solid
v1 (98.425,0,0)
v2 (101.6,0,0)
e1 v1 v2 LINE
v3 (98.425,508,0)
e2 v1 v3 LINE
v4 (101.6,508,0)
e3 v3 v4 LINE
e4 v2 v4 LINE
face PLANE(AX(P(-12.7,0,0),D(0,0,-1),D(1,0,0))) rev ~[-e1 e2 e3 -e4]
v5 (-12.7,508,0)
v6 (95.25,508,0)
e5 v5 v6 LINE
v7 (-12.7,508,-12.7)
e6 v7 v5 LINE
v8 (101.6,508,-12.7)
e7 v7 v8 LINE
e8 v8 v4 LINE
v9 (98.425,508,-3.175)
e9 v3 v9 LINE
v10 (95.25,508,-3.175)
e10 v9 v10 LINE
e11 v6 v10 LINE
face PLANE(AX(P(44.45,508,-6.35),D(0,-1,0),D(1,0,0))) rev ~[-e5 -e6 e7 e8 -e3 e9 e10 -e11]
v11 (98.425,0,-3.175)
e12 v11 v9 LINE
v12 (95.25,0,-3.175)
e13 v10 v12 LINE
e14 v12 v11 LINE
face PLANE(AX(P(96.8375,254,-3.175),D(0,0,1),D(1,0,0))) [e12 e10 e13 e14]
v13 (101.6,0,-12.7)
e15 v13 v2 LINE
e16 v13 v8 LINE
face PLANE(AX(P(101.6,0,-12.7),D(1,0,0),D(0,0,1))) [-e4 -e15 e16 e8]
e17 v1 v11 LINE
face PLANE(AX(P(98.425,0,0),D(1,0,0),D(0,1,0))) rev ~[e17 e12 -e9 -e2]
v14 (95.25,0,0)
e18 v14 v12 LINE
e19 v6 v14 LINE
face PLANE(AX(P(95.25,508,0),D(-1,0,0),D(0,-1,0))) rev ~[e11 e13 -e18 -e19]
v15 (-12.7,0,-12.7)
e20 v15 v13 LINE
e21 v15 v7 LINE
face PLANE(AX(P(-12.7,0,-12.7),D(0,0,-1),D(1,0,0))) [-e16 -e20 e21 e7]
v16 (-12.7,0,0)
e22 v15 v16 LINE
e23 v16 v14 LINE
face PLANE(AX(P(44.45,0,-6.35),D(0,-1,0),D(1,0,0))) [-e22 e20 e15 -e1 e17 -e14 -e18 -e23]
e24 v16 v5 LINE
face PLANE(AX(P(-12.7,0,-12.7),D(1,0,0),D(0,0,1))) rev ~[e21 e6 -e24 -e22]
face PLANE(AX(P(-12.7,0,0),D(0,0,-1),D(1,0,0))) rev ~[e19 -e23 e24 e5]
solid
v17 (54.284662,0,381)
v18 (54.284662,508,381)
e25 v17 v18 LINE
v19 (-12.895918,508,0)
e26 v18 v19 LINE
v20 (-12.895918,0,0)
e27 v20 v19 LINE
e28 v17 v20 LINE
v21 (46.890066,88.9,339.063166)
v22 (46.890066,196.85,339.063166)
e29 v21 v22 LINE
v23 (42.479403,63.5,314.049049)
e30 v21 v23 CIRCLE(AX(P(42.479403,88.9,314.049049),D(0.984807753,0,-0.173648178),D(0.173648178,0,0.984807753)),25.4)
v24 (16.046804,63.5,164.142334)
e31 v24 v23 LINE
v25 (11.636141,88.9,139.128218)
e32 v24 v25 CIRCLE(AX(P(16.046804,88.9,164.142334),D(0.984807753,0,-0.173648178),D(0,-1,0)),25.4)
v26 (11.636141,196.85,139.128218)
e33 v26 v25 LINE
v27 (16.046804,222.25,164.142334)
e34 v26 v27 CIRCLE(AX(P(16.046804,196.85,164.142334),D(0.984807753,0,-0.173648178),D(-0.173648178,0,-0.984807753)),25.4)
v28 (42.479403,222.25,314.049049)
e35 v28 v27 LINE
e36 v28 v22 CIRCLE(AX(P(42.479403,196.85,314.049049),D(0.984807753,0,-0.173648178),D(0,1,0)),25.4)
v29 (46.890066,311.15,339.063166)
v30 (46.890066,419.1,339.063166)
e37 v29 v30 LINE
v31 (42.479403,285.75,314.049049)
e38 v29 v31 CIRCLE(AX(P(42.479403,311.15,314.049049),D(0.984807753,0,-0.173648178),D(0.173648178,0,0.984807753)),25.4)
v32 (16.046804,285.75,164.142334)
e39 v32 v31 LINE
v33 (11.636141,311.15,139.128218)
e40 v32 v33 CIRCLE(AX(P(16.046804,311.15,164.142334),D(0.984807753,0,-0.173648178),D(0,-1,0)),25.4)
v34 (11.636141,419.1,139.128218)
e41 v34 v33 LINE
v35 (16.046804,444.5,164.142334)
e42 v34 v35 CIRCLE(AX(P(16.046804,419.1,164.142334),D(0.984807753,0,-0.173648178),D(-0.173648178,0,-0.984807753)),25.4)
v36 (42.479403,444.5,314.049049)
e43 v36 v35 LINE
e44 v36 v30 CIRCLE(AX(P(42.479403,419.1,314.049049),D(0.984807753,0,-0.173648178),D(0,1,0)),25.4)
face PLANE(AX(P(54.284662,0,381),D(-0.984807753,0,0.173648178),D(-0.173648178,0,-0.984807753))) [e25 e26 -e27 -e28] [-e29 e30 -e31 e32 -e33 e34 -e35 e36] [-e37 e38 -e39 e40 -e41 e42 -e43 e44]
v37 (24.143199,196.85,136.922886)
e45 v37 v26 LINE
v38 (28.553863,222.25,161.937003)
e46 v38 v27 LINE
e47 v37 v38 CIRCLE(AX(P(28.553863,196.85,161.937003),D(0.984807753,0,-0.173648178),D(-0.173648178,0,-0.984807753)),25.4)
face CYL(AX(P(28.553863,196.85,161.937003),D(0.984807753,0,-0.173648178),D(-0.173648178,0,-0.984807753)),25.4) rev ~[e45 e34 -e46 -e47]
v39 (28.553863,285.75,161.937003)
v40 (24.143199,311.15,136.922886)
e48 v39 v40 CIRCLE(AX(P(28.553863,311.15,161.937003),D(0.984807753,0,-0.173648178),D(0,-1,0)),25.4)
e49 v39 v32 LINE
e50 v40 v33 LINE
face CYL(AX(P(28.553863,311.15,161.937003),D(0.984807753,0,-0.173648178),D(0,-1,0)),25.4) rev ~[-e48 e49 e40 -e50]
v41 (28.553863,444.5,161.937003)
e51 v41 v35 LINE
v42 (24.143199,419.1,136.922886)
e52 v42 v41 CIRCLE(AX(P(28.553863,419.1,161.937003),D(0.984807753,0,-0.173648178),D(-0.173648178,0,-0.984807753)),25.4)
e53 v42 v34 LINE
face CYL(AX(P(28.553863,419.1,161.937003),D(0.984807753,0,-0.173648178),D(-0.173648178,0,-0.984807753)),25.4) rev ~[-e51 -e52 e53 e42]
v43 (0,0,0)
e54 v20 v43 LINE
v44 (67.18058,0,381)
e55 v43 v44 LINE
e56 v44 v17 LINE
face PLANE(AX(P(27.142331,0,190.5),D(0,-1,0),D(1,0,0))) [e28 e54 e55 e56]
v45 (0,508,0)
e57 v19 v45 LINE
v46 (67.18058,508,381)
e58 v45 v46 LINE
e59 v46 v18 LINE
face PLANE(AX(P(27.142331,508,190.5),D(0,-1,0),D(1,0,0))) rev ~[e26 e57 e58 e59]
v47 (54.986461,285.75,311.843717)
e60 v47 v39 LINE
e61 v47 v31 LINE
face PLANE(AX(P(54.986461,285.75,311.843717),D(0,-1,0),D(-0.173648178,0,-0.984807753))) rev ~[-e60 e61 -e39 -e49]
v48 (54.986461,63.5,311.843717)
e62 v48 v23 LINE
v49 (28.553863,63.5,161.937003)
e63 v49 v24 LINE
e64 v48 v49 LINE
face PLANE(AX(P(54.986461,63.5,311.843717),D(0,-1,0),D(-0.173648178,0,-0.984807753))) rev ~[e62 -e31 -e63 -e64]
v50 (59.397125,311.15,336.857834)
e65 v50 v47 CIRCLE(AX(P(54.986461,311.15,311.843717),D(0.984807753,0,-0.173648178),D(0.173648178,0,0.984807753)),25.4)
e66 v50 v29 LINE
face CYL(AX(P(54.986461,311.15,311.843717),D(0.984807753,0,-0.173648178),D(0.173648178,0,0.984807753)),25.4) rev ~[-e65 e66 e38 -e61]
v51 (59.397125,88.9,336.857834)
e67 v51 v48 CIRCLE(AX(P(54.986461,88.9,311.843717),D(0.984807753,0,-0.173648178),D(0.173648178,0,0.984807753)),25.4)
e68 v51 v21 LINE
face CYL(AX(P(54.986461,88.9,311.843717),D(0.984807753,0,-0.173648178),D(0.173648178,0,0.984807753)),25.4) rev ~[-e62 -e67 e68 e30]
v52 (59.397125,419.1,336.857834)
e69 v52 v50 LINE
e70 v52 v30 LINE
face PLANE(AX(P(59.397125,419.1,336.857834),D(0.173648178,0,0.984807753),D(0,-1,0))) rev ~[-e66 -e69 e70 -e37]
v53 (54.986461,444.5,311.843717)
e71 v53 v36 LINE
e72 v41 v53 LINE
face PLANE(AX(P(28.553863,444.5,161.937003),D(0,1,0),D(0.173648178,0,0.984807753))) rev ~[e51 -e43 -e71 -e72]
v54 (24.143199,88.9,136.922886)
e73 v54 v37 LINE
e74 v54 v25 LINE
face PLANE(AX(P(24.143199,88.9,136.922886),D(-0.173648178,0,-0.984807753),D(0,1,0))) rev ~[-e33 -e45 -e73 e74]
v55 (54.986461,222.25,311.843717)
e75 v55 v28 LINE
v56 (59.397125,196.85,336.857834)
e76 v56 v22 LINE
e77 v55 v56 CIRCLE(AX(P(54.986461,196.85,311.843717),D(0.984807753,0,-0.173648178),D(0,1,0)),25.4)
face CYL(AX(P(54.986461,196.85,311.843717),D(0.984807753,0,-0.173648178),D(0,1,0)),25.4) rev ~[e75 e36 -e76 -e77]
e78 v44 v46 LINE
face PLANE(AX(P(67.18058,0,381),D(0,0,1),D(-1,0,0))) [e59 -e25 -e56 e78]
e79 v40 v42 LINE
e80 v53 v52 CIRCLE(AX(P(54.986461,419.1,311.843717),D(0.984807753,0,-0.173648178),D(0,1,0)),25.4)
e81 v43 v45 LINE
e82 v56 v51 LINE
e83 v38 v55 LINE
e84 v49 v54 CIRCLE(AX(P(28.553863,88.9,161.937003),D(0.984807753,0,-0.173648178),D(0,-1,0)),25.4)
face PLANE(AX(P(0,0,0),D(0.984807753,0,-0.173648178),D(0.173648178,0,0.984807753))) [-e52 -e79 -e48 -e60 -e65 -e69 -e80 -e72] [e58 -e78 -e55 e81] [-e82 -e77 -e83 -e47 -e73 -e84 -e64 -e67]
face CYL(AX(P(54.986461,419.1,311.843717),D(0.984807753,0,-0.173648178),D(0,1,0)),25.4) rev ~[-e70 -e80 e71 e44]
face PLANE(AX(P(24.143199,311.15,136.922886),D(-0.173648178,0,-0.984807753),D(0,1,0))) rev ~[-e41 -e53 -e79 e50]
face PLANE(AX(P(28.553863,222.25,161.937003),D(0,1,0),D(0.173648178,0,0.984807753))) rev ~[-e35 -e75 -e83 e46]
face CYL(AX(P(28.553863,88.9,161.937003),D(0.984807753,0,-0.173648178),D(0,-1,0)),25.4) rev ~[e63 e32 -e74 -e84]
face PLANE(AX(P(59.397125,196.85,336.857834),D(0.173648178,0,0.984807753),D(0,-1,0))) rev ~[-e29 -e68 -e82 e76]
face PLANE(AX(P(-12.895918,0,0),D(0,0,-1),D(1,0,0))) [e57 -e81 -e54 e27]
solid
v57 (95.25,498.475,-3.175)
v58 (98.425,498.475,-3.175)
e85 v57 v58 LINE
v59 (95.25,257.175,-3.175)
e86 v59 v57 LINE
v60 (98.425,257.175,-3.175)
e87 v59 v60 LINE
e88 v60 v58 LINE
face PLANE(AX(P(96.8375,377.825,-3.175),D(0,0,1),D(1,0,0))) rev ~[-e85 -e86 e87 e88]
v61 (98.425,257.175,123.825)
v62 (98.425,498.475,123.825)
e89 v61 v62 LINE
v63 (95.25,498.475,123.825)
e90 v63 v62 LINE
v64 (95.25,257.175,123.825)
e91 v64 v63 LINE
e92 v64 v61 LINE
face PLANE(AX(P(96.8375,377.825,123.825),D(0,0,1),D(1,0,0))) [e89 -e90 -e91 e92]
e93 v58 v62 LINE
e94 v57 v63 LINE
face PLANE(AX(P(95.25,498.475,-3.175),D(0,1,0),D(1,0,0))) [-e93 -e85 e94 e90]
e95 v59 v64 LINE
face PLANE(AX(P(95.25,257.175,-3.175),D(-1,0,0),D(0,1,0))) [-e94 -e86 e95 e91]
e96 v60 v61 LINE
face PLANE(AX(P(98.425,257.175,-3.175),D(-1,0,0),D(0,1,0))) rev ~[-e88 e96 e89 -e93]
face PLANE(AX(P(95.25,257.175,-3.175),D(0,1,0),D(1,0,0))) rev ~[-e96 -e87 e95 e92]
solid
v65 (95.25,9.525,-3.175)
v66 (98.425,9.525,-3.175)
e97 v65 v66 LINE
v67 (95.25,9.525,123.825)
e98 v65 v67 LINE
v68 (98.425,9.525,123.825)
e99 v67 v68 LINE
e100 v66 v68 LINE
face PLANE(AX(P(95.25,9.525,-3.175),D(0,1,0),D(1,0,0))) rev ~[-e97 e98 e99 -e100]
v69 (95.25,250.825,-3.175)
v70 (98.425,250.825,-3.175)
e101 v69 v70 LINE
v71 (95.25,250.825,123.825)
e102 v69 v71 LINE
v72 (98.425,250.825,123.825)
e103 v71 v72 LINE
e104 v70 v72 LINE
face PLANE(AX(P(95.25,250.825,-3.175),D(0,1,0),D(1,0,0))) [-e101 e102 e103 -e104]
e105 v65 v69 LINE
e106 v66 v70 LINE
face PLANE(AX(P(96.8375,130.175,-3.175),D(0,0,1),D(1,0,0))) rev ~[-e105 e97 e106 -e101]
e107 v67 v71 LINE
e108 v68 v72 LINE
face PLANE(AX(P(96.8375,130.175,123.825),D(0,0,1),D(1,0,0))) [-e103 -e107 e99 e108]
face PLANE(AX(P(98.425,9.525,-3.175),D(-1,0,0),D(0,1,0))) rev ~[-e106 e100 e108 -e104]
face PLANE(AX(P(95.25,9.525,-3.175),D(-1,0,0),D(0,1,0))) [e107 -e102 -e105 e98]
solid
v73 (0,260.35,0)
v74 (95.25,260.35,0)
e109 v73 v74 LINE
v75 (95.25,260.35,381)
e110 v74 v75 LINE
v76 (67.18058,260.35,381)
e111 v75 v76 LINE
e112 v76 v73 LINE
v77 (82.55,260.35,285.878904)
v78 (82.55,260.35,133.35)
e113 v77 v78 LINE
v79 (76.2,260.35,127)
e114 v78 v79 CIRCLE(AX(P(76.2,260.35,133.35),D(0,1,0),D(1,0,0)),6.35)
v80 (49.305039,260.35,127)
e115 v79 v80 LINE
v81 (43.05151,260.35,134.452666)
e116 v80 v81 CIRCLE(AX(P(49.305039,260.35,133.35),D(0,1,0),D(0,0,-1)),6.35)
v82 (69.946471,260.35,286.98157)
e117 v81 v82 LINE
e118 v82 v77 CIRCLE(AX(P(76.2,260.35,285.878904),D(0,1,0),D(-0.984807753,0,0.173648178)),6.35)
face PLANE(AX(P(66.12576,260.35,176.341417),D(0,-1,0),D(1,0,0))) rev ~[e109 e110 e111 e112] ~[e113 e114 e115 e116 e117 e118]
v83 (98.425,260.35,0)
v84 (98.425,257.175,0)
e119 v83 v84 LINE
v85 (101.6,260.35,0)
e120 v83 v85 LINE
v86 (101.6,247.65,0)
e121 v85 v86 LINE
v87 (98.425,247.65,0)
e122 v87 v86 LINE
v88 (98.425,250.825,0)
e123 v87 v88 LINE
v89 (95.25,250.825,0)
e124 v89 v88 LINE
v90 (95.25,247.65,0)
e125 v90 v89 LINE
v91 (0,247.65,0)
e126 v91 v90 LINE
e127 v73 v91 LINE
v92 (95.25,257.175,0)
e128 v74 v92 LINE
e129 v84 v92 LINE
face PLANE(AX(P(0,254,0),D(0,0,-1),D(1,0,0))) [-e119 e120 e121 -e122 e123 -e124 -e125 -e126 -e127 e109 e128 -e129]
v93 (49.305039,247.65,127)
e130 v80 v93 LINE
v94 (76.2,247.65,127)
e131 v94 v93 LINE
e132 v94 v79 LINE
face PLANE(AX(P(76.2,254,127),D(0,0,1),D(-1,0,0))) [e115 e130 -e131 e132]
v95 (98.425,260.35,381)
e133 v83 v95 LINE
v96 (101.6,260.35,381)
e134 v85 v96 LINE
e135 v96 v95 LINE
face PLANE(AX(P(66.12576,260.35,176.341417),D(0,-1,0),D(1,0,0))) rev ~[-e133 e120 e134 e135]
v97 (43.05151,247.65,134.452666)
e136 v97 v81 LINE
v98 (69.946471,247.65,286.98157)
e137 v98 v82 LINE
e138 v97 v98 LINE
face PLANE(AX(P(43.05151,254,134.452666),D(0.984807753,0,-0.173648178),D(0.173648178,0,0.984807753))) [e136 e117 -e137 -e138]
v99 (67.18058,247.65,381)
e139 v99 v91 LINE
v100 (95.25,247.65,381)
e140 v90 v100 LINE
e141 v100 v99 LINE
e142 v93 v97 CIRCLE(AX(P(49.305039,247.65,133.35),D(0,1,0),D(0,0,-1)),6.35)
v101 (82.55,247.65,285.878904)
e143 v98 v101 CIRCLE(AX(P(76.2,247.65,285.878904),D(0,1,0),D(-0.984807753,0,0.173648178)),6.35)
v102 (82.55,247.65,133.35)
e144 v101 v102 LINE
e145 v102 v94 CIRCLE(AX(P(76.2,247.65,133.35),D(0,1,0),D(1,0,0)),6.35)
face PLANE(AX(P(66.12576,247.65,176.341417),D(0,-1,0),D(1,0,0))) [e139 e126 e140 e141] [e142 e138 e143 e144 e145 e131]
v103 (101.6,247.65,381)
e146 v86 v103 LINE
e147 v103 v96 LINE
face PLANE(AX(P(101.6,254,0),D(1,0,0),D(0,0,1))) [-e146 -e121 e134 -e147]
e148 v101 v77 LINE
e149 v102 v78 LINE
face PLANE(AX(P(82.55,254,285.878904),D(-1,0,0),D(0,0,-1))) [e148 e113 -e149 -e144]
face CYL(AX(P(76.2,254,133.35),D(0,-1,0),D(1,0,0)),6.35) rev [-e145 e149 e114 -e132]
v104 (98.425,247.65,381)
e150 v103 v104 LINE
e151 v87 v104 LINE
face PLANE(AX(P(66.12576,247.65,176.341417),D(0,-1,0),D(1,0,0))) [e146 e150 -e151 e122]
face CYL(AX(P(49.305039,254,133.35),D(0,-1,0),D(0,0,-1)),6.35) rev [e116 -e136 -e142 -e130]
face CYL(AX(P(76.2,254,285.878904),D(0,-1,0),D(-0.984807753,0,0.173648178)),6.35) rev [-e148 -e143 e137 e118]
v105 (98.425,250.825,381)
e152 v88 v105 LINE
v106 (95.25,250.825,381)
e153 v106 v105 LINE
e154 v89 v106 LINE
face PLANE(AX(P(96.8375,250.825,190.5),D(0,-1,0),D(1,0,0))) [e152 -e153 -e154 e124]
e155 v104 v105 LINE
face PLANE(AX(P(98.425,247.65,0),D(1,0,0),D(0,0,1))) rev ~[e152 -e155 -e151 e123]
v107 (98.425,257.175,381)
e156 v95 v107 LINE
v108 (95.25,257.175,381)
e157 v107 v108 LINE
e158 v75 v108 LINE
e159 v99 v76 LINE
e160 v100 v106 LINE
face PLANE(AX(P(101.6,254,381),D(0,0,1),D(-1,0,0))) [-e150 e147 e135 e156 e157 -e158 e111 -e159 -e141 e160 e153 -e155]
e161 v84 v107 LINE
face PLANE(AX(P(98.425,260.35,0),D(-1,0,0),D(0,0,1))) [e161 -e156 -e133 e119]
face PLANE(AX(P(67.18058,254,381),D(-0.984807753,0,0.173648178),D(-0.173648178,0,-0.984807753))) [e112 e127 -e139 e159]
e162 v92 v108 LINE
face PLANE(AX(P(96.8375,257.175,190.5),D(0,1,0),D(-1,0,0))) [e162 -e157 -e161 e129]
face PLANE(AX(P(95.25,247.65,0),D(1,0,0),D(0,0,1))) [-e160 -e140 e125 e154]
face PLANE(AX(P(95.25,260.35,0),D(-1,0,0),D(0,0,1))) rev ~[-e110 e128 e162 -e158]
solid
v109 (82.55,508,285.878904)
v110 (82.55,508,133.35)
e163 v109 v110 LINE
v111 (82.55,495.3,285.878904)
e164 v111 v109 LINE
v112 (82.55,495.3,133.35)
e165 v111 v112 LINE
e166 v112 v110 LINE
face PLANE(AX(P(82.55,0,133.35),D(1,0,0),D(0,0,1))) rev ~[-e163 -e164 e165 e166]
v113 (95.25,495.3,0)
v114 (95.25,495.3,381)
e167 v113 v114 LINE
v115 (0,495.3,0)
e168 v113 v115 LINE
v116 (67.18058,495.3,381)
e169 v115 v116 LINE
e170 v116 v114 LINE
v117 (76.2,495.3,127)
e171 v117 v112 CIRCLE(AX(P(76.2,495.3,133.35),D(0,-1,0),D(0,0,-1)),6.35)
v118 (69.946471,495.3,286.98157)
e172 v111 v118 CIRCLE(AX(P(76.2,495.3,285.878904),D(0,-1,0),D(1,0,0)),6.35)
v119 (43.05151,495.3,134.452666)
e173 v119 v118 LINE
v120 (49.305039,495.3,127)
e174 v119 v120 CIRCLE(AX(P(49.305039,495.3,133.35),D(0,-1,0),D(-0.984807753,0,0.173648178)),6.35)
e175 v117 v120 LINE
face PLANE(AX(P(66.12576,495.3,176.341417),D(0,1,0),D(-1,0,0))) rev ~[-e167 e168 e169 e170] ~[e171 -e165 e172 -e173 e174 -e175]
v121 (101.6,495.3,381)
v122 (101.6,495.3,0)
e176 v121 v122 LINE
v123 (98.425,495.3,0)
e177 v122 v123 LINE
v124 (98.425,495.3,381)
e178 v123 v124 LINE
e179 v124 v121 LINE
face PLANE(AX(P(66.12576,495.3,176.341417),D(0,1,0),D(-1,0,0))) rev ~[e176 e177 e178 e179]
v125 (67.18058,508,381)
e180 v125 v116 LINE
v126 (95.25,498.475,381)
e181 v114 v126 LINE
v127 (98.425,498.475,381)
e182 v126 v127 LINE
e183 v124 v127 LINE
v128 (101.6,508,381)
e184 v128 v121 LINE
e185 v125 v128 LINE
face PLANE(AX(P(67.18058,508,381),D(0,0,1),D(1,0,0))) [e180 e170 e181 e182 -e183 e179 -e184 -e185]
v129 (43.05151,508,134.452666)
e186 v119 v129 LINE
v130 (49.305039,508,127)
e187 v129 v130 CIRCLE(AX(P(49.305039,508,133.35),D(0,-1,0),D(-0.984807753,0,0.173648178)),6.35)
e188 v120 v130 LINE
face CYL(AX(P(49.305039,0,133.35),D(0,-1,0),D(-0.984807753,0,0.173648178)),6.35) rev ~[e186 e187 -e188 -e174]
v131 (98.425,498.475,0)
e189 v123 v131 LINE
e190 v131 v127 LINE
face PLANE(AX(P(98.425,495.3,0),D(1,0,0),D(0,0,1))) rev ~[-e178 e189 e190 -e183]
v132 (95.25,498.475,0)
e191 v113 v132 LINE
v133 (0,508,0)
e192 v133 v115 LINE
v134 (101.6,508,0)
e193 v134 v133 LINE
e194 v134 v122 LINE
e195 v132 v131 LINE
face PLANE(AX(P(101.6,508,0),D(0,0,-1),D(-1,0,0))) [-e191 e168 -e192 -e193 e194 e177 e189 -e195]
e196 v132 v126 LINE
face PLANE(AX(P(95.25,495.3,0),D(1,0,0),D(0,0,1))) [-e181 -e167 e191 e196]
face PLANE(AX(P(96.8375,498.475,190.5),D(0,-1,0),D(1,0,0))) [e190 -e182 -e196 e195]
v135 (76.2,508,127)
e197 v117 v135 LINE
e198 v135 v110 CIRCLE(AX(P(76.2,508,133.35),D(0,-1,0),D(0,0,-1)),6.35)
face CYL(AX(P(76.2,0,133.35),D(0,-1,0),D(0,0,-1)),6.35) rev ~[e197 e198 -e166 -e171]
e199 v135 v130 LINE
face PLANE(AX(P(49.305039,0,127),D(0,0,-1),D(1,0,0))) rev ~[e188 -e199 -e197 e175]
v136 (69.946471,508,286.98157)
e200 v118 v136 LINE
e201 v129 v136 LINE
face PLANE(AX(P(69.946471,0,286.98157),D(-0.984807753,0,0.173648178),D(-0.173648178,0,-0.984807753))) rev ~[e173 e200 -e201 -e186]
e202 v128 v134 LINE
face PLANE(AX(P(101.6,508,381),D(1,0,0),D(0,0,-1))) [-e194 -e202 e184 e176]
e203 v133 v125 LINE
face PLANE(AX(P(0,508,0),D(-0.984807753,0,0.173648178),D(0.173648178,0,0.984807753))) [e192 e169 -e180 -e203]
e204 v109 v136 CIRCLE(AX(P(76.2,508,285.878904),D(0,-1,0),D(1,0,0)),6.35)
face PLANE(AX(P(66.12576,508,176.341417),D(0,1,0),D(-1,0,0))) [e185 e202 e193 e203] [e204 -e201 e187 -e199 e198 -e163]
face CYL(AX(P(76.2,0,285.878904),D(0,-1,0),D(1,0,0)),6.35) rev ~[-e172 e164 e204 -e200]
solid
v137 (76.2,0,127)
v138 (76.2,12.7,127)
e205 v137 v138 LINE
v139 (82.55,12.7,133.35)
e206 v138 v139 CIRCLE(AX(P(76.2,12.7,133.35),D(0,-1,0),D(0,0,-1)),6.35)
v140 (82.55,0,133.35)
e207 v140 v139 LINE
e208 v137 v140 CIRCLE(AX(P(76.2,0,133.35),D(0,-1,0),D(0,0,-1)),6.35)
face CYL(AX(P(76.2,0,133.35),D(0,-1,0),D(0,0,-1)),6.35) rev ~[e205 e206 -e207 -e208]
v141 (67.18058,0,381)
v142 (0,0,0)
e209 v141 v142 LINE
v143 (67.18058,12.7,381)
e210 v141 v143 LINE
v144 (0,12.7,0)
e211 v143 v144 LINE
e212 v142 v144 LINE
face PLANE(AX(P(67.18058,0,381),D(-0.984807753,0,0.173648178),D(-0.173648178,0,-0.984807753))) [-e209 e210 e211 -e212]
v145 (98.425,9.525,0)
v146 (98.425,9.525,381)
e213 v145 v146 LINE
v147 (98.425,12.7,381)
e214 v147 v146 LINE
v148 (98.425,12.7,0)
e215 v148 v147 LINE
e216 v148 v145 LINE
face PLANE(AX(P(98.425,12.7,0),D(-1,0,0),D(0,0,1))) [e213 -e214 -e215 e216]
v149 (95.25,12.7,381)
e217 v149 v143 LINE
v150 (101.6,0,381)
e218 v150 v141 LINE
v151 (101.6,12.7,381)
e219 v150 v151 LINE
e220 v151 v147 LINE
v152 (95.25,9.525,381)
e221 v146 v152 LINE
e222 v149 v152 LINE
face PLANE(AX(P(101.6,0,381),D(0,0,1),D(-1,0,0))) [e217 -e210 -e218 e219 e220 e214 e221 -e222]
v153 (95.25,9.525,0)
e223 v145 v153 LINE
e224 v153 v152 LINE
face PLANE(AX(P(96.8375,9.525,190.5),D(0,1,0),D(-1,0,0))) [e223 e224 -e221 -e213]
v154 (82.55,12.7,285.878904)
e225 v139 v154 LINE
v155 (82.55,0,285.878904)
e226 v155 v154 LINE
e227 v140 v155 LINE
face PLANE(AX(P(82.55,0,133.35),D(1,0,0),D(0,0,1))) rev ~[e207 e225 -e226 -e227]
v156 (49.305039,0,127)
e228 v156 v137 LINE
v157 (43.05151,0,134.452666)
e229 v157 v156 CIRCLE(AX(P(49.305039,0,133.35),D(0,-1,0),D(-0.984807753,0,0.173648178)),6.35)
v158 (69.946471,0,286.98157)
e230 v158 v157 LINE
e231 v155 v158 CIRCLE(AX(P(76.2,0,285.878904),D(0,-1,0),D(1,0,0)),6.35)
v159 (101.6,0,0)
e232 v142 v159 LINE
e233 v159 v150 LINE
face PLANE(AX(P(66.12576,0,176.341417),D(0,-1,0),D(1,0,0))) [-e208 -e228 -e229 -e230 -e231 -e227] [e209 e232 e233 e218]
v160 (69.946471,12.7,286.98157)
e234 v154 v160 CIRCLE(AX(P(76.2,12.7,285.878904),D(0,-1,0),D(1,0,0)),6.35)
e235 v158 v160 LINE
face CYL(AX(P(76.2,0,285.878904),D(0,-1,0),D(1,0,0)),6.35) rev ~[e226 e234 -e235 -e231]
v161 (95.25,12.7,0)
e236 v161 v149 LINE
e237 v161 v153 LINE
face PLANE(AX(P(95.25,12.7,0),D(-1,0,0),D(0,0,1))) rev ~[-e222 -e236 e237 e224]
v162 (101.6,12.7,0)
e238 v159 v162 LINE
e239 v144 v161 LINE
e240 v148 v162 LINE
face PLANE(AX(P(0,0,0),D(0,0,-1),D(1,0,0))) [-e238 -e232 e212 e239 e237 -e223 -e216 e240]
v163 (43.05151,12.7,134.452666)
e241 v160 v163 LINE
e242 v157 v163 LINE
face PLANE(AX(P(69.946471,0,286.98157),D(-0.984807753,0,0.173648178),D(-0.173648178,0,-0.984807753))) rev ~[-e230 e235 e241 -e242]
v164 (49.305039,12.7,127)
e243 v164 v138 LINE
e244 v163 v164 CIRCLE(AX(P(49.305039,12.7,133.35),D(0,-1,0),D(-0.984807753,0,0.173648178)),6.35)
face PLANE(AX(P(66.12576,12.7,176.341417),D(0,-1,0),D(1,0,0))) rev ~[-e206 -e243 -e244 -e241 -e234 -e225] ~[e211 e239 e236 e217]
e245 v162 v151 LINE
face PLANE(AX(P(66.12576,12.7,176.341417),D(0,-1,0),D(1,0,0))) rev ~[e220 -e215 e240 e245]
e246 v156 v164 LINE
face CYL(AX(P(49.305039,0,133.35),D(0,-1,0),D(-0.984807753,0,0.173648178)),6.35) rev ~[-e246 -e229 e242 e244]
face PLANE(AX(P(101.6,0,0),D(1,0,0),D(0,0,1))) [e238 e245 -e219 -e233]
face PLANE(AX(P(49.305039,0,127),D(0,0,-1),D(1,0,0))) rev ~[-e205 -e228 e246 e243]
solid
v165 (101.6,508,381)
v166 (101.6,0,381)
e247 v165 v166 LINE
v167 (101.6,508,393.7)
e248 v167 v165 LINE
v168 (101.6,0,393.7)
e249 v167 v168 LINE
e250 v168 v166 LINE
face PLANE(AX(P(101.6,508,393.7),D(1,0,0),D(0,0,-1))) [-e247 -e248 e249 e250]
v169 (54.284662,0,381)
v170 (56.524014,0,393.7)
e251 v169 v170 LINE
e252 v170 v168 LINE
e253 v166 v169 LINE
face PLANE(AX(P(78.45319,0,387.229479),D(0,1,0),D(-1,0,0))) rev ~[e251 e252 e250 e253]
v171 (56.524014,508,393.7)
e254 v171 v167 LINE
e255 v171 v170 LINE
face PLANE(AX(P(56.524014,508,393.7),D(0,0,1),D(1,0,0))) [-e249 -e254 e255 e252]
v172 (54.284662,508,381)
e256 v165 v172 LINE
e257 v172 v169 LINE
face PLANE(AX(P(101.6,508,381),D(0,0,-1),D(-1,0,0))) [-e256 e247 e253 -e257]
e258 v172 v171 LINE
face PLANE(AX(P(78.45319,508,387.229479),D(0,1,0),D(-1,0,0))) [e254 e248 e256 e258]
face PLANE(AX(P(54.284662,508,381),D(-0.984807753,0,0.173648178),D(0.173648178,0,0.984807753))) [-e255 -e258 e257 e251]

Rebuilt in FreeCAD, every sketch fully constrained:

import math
import FreeCAD as App
import Part
import Sketcher
Q = App.Units.Quantity


def add_polygon(sketch, points):
    """Adds a closed chain of lines whose ends are joined by coincident constraints."""
    first, n = sketch.GeometryCount, len(points)
    for a, b in zip(points, points[1:] + points[:1]):
        sketch.addGeometry(Part.LineSegment(App.Vector(*a, 0), App.Vector(*b, 0)), False)
    for i in range(n):
        sketch.addConstraint(Sketcher.Constraint("Coincident", first + i, 2, first + (i + 1) % n, 1))

doc = App.newDocument("Part")
params = doc.addObject("Spreadsheet::Sheet", "Params")
for row, (alias, value) in enumerate([
    ("sketch1_width", "4 in"),
    ("sketch1_height", "15 in"),
    ("pad1_length", "0.5 in"),
    ("sketch2_height", "15 in"),
    ("sketch2_width", "0.125 in"),
    ("pocket1_length", "0.125 in"),
    ("sketch3_width", "4.5 in"),
    ("sketch3_height", "0.5 in"),
    ("pad2_length", "20 in"),
    ("sketch4_height", "20 in"),
    ("sketch4_width", "0.125 in"),
    ("pocket2_length", "0.125 in"),
    ("sketch5_width", "4 in"),
    ("sketch5_height", "15 in"),
    ("pad3_length", "0.5 in"),
    ("sketch6_height", "15 in"),
    ("sketch6_width", "0.125 in"),
    ("pocket3_length", "0.125 in"),
    ("pad4_length", "20 in"),
    ("sketch8_radius", "1 in"),
    ("sketch8_width", "4.25 in"),
    ("sketch9_height", "0.5 in"),
    ("pad5_length", "20 in"),
    ("sketch10_width", "4 in"),
    ("sketch10_height", "15 in"),
    ("sketch10_radius", "0.25 in"),
    ("pad6_length", "0.5 in"),
    ("sketch11_height", "15 in"),
    ("sketch11_width", "0.125 in"),
    ("pocket5_length", "0.125 in"),
    ("sketch12_height", "15 in"),
    ("sketch12_width", "0.125 in"),
    ("pocket6_length", "0.125 in"),
    ("sketch13_height", "9.5 in"),
    ("sketch13_width", "0.125 in"),
    ("pad7_length", "5 in"),
    ("sketch14_height", "9.5 in"),
    ("sketch14_width", "0.125 in"),
    ("pad8_length", "5 in"),
    ("sketch15_radius", "0.25 in"),
    ("pad9_length", "508.001 mm"),
], start=1):
    params.set(f"A{row}", alias)
    params.set(f"B{row}", "=" + value)
    params.setAlias(f"B{row}", alias)

body = doc.addObject("PartDesign::Body", "Body")

sketch1 = doc.addObject("Sketcher::SketchObject", "Sketch")
body.addObject(sketch1)
sketch1.AttachmentSupport = (doc.XZ_Plane, [""])
sketch1.MapMode = "FlatFace"
add_polygon(sketch1, [(67.18058, 381), (0, 0), (101.6, 0), (101.6, 381)])
sketch1.addConstraint([
    Sketcher.Constraint("Horizontal", 1),
    Sketcher.Constraint("Vertical", 2),
    Sketcher.Constraint("Horizontal", 3),
    Sketcher.Constraint("Coincident", 0, 2, -1, 1),
    Sketcher.Constraint("DistanceX", 1, 1, 1, 2, Q("4 in")),
    Sketcher.Constraint("DistanceY", 2, 1, 2, 2, Q("15 in")),
    Sketcher.Constraint("Angle", 0, Q("-100 deg")),
])
sketch1.setExpression("Constraints[8]", "Params.sketch1_width")
sketch1.setExpression("Constraints[9]", "Params.sketch1_height")
pad1 = doc.addObject("PartDesign::Pad", "Pad")
body.addObject(pad1)
pad1.Profile = sketch1
pad1.setExpression("Length", "Params.pad1_length")
pad1.Reversed = True

sketch2 = doc.addObject("Sketcher::SketchObject", "Sketch001")
body.addObject(sketch2)
sketch2.AttachmentSupport = (doc.XZ_Plane, [""])
sketch2.MapMode = "FlatFace"
sketch2.AttachmentOffset = App.Placement(App.Vector(0, 0, -0.5 * 25.4), App.Rotation())
add_polygon(sketch2, [(98.425, 381), (98.425, 0), (95.25, 0), (95.25, 381)])
sketch2.addConstraint([
    Sketcher.Constraint("Vertical", 0),
    Sketcher.Constraint("Horizontal", 1),
    Sketcher.Constraint("Vertical", 2),
    Sketcher.Constraint("Horizontal", 3),
    Sketcher.Constraint("PointOnObject", 0, 2, -1),
    Sketcher.Constraint("DistanceY", 0, 2, 0, 1, Q("15 in")),
    Sketcher.Constraint("DistanceX", 1, 2, 1, 1, Q("0.125 in")),
    Sketcher.Constraint("DistanceX", -1, 1, 1, 2, Q("3.75 in")),
])
sketch2.setExpression("Constraints[9]", "Params.sketch2_height")
sketch2.setExpression("Constraints[10]", "Params.sketch2_width")
pocket1 = doc.addObject("PartDesign::Pocket", "Pocket")
body.addObject(pocket1)
pocket1.Profile = sketch2
pocket1.setExpression("Length", "Params.pocket1_length")
pocket1.Reversed = True
body2 = doc.addObject("PartDesign::Body", "Body001")

sketch3 = doc.addObject("Sketcher::SketchObject", "Sketch002")
body2.addObject(sketch3)
sketch3.AttachmentSupport = (doc.getObject("XZ_Plane001"), [""])
sketch3.MapMode = "FlatFace"
add_polygon(sketch3, [(-12.7, 0), (-12.7, -12.7), (101.6, -12.7), (101.6, 0)])
sketch3.addConstraint([
    Sketcher.Constraint("Vertical", 0),
    Sketcher.Constraint("Horizontal", 1),
    Sketcher.Constraint("Vertical", 2),
    Sketcher.Constraint("Horizontal", 3),
    Sketcher.Constraint("PointOnObject", 2, 2, -1),
    Sketcher.Constraint("DistanceX", 1, 1, 1, 2, Q("4.5 in")),
    Sketcher.Constraint("DistanceY", 0, 2, 0, 1, Q("0.5 in")),
    Sketcher.Constraint("DistanceX", -1, 1, 1, 2, Q("4 in")),
])
sketch3.setExpression("Constraints[9]", "Params.sketch3_width")
sketch3.setExpression("Constraints[10]", "Params.sketch3_height")
pad2 = doc.addObject("PartDesign::Pad", "Pad001")
body2.addObject(pad2)
pad2.Profile = sketch3
pad2.setExpression("Length", "Params.pad2_length")
pad2.Reversed = True

sketch4 = doc.addObject("Sketcher::SketchObject", "Sketch003")
body2.addObject(sketch4)
sketch4.AttachmentSupport = (doc.getObject("XY_Plane001"), [""])
sketch4.MapMode = "FlatFace"
add_polygon(sketch4, [(95.25, 508), (95.25, 0), (98.425, 0), (98.425, 508)])
sketch4.addConstraint([
    Sketcher.Constraint("Vertical", 0),
    Sketcher.Constraint("Horizontal", 1),
    Sketcher.Constraint("Vertical", 2),
    Sketcher.Constraint("Horizontal", 3),
    Sketcher.Constraint("PointOnObject", 0, 2, -1),
    Sketcher.Constraint("DistanceY", 0, 2, 0, 1, Q("20 in")),
    Sketcher.Constraint("DistanceX", 1, 1, 1, 2, Q("0.125 in")),
    Sketcher.Constraint("DistanceX", -1, 1, 0, 2, Q("3.75 in")),
])
sketch4.setExpression("Constraints[9]", "Params.sketch4_height")
sketch4.setExpression("Constraints[10]", "Params.sketch4_width")
pocket2 = doc.addObject("PartDesign::Pocket", "Pocket001")
body2.addObject(pocket2)
pocket2.Profile = sketch4
pocket2.setExpression("Length", "Params.pocket2_length")
body3 = doc.addObject("PartDesign::Body", "Body002")

sketch5 = doc.addObject("Sketcher::SketchObject", "Sketch004")
body3.addObject(sketch5)
sketch5.AttachmentSupport = (doc.getObject("XZ_Plane002"), [""])
sketch5.MapMode = "FlatFace"
sketch5.AttachmentOffset = App.Placement(App.Vector(0, 0, -20 * 25.4), App.Rotation())
add_polygon(sketch5, [(0, 0), (67.18058, 381), (101.6, 381), (101.6, 0)])
sketch5.addConstraint([
    Sketcher.Constraint("Horizontal", 1),
    Sketcher.Constraint("Vertical", 2),
    Sketcher.Constraint("Horizontal", 3),
    Sketcher.Constraint("Coincident", 3, 2, -1, 1),
    Sketcher.Constraint("DistanceX", 3, 2, 3, 1, Q("4 in")),
    Sketcher.Constraint("DistanceY", 2, 2, 2, 1, Q("15 in")),
    Sketcher.Constraint("Angle", 0, Q("80 deg")),
])
sketch5.setExpression("Constraints[8]", "Params.sketch5_width")
sketch5.setExpression("Constraints[9]", "Params.sketch5_height")
pad3 = doc.addObject("PartDesign::Pad", "Pad002")
body3.addObject(pad3)
pad3.Profile = sketch5
pad3.setExpression("Length", "Params.pad3_length")

sketch6 = doc.addObject("Sketcher::SketchObject", "Sketch005")
body3.addObject(sketch6)
sketch6.AttachmentSupport = (doc.getObject("XZ_Plane002"), [""])
sketch6.MapMode = "FlatFace"
sketch6.AttachmentOffset = App.Placement(App.Vector(0, 0, -19.5 * 25.4), App.Rotation())
add_polygon(sketch6, [(95.25, 381), (95.25, 0), (98.425, 0), (98.425, 381)])
sketch6.addConstraint([
    Sketcher.Constraint("Vertical", 0),
    Sketcher.Constraint("Horizontal", 1),
    Sketcher.Constraint("Vertical", 2),
    Sketcher.Constraint("Horizontal", 3),
    Sketcher.Constraint("PointOnObject", 0, 2, -1),
    Sketcher.Constraint("DistanceY", 0, 2, 0, 1, Q("15 in")),
    Sketcher.Constraint("DistanceX", 1, 1, 1, 2, Q("0.125 in")),
    Sketcher.Constraint("DistanceX", -1, 1, 0, 2, Q("3.75 in")),
])
sketch6.setExpression("Constraints[9]", "Params.sketch6_height")
sketch6.setExpression("Constraints[10]", "Params.sketch6_width")
pocket3 = doc.addObject("PartDesign::Pocket", "Pocket002")
body3.addObject(pocket3)
pocket3.Profile = sketch6
pocket3.setExpression("Length", "Params.pocket3_length")
body4 = doc.addObject("PartDesign::Body", "Body003")

sketch7 = doc.addObject("Sketcher::SketchObject", "Sketch006")
body4.addObject(sketch7)
sketch7.AttachmentSupport = (doc.getObject("XZ_Plane003"), [""])
sketch7.MapMode = "FlatFace"
add_polygon(sketch7, [(0, 0), (67.18058, 381), (54.284662, 381), (-12.895918, 0)])
sketch7.addConstraint([
    Sketcher.Constraint("Horizontal", 1),
    Sketcher.Constraint("Horizontal", 3),
    Sketcher.Constraint("Coincident", 3, 2, -1, 1),
    Sketcher.Constraint("Parallel", 0, 2),
    Sketcher.Constraint("DistanceY", -1, 1, 0, 2, Q("15 in")),
    Sketcher.Constraint("Angle", 0, Q("80 deg")),
    Sketcher.Constraint("DistanceX", 1, 2, 1, 1, 12.895918),
])
pad4 = doc.addObject("PartDesign::Pad", "Pad003")
body4.addObject(pad4)
pad4.Profile = sketch7
pad4.setExpression("Length", "Params.pad4_length")
pad4.Reversed = True

sketch8 = doc.addObject("Sketcher::SketchObject", "Sketch007")
body4.addObject(sketch8)
sketch8.Placement = App.Placement(App.Vector(0, 0, 0), App.Rotation(App.Vector(0, 1, 0), App.Vector(0.173648178, 0, 0.984807753), App.Vector(0.984807753, 0, -0.173648178), "ZXY"))
sketch8.addGeometry([
    Part.LineSegment(App.Vector(196.85, 342.054409, 0), App.Vector(88.9, 342.054409, 0)),
    Part.ArcOfCircle(Part.Circle(App.Vector(88.9, 316.654409, 0), App.Vector(0, 0, 1), 25.4), math.radians(90), math.radians(180)),
    Part.LineSegment(App.Vector(63.5, 316.654409, 0), App.Vector(63.5, 164.435142, 0)),
    Part.ArcOfCircle(Part.Circle(App.Vector(88.9, 164.435142, 0), App.Vector(0, 0, 1), 25.4), math.radians(180), math.radians(270)),
    Part.LineSegment(App.Vector(88.9, 139.035142, 0), App.Vector(196.85, 139.035142, 0)),
    Part.ArcOfCircle(Part.Circle(App.Vector(196.85, 164.435142, 0), App.Vector(0, 0, 1), 25.4), math.radians(-90), math.radians(0)),
    Part.LineSegment(App.Vector(222.25, 164.435142, 0), App.Vector(222.25, 316.654409, 0)),
    Part.ArcOfCircle(Part.Circle(App.Vector(196.85, 316.654409, 0), App.Vector(0, 0, 1), 25.4), math.radians(0), math.radians(90)),
    Part.ArcOfCircle(Part.Circle(App.Vector(311.15, 316.654409, 0), App.Vector(0, 0, 1), 25.4), math.radians(90), math.radians(180)),
    Part.LineSegment(App.Vector(285.75, 316.654409, 0), App.Vector(285.75, 164.435142, 0)),
    Part.ArcOfCircle(Part.Circle(App.Vector(311.15, 164.435142, 0), App.Vector(0, 0, 1), 25.4), math.radians(180), math.radians(270)),
    Part.LineSegment(App.Vector(311.15, 139.035142, 0), App.Vector(419.1, 139.035142, 0)),
    Part.ArcOfCircle(Part.Circle(App.Vector(419.1, 164.435142, 0), App.Vector(0, 0, 1), 25.4), math.radians(-90), math.radians(0)),
    Part.LineSegment(App.Vector(444.5, 164.435142, 0), App.Vector(444.5, 316.654409, 0)),
    Part.ArcOfCircle(Part.Circle(App.Vector(419.1, 316.654409, 0), App.Vector(0, 0, 1), 25.4), math.radians(0), math.radians(90)),
    Part.LineSegment(App.Vector(419.1, 342.054409, 0), App.Vector(311.15, 342.054409, 0)),
], False)
sketch8.addConstraint([
    Sketcher.Constraint("Tangent", 0, 2, 1, 1),
    Sketcher.Constraint("Tangent", 1, 2, 2, 1),
    Sketcher.Constraint("Tangent", 2, 2, 3, 1),
    Sketcher.Constraint("Tangent", 3, 2, 4, 1),
    Sketcher.Constraint("Tangent", 4, 2, 5, 1),
    Sketcher.Constraint("Tangent", 5, 2, 6, 1),
    Sketcher.Constraint("Tangent", 6, 2, 7, 1),
    Sketcher.Constraint("Tangent", 7, 2, 0, 1),
    Sketcher.Constraint("Tangent", 8, 2, 9, 1),
    Sketcher.Constraint("Tangent", 9, 2, 10, 1),
    Sketcher.Constraint("Tangent", 10, 2, 11, 1),
    Sketcher.Constraint("Tangent", 11, 2, 12, 1),
    Sketcher.Constraint("Tangent", 12, 2, 13, 1),
    Sketcher.Constraint("Tangent", 13, 2, 14, 1),
    Sketcher.Constraint("Tangent", 14, 2, 15, 1),
    Sketcher.Constraint("Tangent", 15, 2, 8, 1),
    Sketcher.Constraint("Horizontal", 0),
    Sketcher.Constraint("Vertical", 2),
    Sketcher.Constraint("Horizontal", 4),
    Sketcher.Constraint("Vertical", 6),
    Sketcher.Constraint("Vertical", 9),
    Sketcher.Constraint("Horizontal", 11),
    Sketcher.Constraint("Vertical", 13),
    Sketcher.Constraint("Horizontal", 15),
    Sketcher.Constraint("Equal", 1, 3),
    Sketcher.Constraint("Equal", 3, 5),
    Sketcher.Constraint("Equal", 5, 7),
    Sketcher.Constraint("Equal", 7, 8),
    Sketcher.Constraint("Equal", 8, 10),
    Sketcher.Constraint("Equal", 10, 12),
    Sketcher.Constraint("Equal", 12, 14),
    Sketcher.Constraint("Horizontal", 7, 3, 8, 3),
    Sketcher.Constraint("Horizontal", 5, 3, 10, 3),
    Sketcher.Constraint("Equal", 4, 11),
    Sketcher.Constraint("Radius", 1, Q("1 in")),
    Sketcher.Constraint("DistanceX", 3, 3, 12, 3, Q("13 in")),
    Sketcher.Constraint("DistanceX", 0, 2, 0, 1, Q("4.25 in")),
    Sketcher.Constraint("DistanceX", -1, 1, 1, 3, Q("3.5 in")),
    Sketcher.Constraint("DistanceY", 2, 2, 2, 1, 152.219267),
    Sketcher.Constraint("DistanceY", -1, 1, 1, 3, 316.654409),
])
sketch8.setExpression("Constraints[34]", "Params.sketch8_radius")
sketch8.setExpression("Constraints[36]", "Params.sketch8_width")
pocket4 = doc.addObject("PartDesign::Pocket", "Pocket003")
body4.addObject(pocket4)
pocket4.Profile = sketch8
pocket4.Type = "ThroughAll"
body5 = doc.addObject("PartDesign::Body", "Body004")

sketch9 = doc.addObject("Sketcher::SketchObject", "Sketch008")
body5.addObject(sketch9)
sketch9.AttachmentSupport = (doc.getObject("XZ_Plane004"), [""])
sketch9.MapMode = "FlatFace"
sketch9.AttachmentOffset = App.Placement(App.Vector(0, 0, -20 * 25.4), App.Rotation())
add_polygon(sketch9, [(101.6, 393.7), (101.6, 381), (54.284662, 381), (56.524014, 393.7)])
sketch9.addConstraint([
    Sketcher.Constraint("Vertical", 0),
    Sketcher.Constraint("Horizontal", 1),
    Sketcher.Constraint("Horizontal", 3),
    Sketcher.Constraint("DistanceY", 0, 2, 0, 1, Q("0.5 in")),
    Sketcher.Constraint("DistanceX", -1, 1, 0, 2, Q("4 in")),
    Sketcher.Constraint("DistanceY", -1, 1, 0, 2, Q("15 in")),
    Sketcher.Constraint("Angle", 2, Q("80 deg")),
    Sketcher.Constraint("DistanceX", 1, 2, 1, 1, 47.315338),
])
sketch9.setExpression("Constraints[7]", "Params.sketch9_height")
pad5 = doc.addObject("PartDesign::Pad", "Pad004")
body5.addObject(pad5)
pad5.Profile = sketch9
pad5.setExpression("Length", "Params.pad5_length")
body6 = doc.addObject("PartDesign::Body", "Body005")

sketch10 = doc.addObject("Sketcher::SketchObject", "Sketch009")
body6.addObject(sketch10)
sketch10.AttachmentSupport = (doc.getObject("XZ_Plane005"), [""])
sketch10.MapMode = "FlatFace"
sketch10.AttachmentOffset = App.Placement(App.Vector(0, 0, -10 * 25.4), App.Rotation())
add_polygon(sketch10, [(67.18058, 381), (0, 0), (101.6, 0), (101.6, 381)])
sketch10.addGeometry(Part.LineSegment(App.Vector(76.2, 127, 0), App.Vector(49.305039, 127, 0)), False)
sketch10.addGeometry(Part.ArcOfCircle(Part.Circle(App.Vector(49.305039, 133.35, 0), App.Vector(0, 0, 1), 6.35), math.radians(170), math.radians(270)), False)
sketch10.addGeometry(Part.LineSegment(App.Vector(43.05151, 134.452666, 0), App.Vector(69.946471, 286.98157, 0)), False)
sketch10.addGeometry(Part.ArcOfCircle(Part.Circle(App.Vector(76.2, 285.878904, 0), App.Vector(0, 0, 1), 6.35), math.radians(0), math.radians(170)), False)
sketch10.addGeometry(Part.LineSegment(App.Vector(82.55, 285.878904, 0), App.Vector(82.55, 133.35, 0)), False)
sketch10.addGeometry(Part.ArcOfCircle(Part.Circle(App.Vector(76.2, 133.35, 0), App.Vector(0, 0, 1), 6.35), math.radians(-90), math.radians(0)), False)
sketch10.addConstraint([
    Sketcher.Constraint("Tangent", 4, 2, 5, 2),
    Sketcher.Constraint("Tangent", 5, 1, 6, 1),
    Sketcher.Constraint("Tangent", 6, 2, 7, 2),
    Sketcher.Constraint("Tangent", 7, 1, 8, 1),
    Sketcher.Constraint("Tangent", 8, 2, 9, 2),
    Sketcher.Constraint("Tangent", 9, 1, 4, 1),
    Sketcher.Constraint("Horizontal", 1),
    Sketcher.Constraint("Vertical", 2),
    Sketcher.Constraint("Horizontal", 3),
    Sketcher.Constraint("Horizontal", 4),
    Sketcher.Constraint("Vertical", 8),
    Sketcher.Constraint("Coincident", 0, 2, -1, 1),
    Sketcher.Constraint("Equal", 5, 7),
    Sketcher.Constraint("Equal", 7, 9),
    Sketcher.Constraint("Parallel", 0, 6),
    Sketcher.Constraint("DistanceX", 1, 1, 1, 2, Q("4 in")),
    Sketcher.Constraint("DistanceY", 2, 1, 2, 2, Q("15 in")),
    Sketcher.Constraint("Radius", 5, Q("0.25 in")),
    Sketcher.Constraint("DistanceX", -1, 1, 7, 3, Q("3 in")),
    Sketcher.Constraint("DistanceY", -1, 1, 4, 2, Q("5 in")),
    Sketcher.Constraint("Angle", 0, Q("-100 deg")),
    Sketcher.Constraint("DistanceX", 4, 2, 4, 1, 26.894961),
])
sketch10.setExpression("Constraints[19]", "Params.sketch10_width")
sketch10.setExpression("Constraints[20]", "Params.sketch10_height")
sketch10.setExpression("Constraints[21]", "Params.sketch10_radius")
pad6 = doc.addObject("PartDesign::Pad", "Pad005")
body6.addObject(pad6)
pad6.Profile = sketch10
pad6.setExpression("Length", "Params.pad6_length")
pad6.Midplane = True

sketch11 = doc.addObject("Sketcher::SketchObject", "Sketch010")
body6.addObject(sketch11)
sketch11.AttachmentSupport = (doc.getObject("XZ_Plane005"), [""])
sketch11.MapMode = "FlatFace"
sketch11.AttachmentOffset = App.Placement(App.Vector(0, 0, -9.75 * 25.4), App.Rotation())
add_polygon(sketch11, [(95.25, 381), (95.25, 0), (98.425, 0), (98.425, 381)])
sketch11.addConstraint([
    Sketcher.Constraint("Vertical", 0),
    Sketcher.Constraint("Horizontal", 1),
    Sketcher.Constraint("Vertical", 2),
    Sketcher.Constraint("Horizontal", 3),
    Sketcher.Constraint("PointOnObject", 0, 2, -1),
    Sketcher.Constraint("DistanceY", 0, 2, 0, 1, Q("15 in")),
    Sketcher.Constraint("DistanceX", 1, 1, 1, 2, Q("0.125 in")),
    Sketcher.Constraint("DistanceX", -1, 1, 0, 2, Q("3.75 in")),
])
sketch11.setExpression("Constraints[9]", "Params.sketch11_height")
sketch11.setExpression("Constraints[10]", "Params.sketch11_width")
pocket5 = doc.addObject("PartDesign::Pocket", "Pocket004")
body6.addObject(pocket5)
pocket5.Profile = sketch11
pocket5.setExpression("Length", "Params.pocket5_length")

sketch12 = doc.addObject("Sketcher::SketchObject", "Sketch011")
body6.addObject(sketch12)
sketch12.AttachmentSupport = (doc.getObject("XZ_Plane005"), [""])
sketch12.MapMode = "FlatFace"
sketch12.AttachmentOffset = App.Placement(App.Vector(0, 0, -10.25 * 25.4), App.Rotation())
add_polygon(sketch12, [(98.425, 381), (98.425, 0), (95.25, 0), (95.25, 381)])
sketch12.addConstraint([
    Sketcher.Constraint("Vertical", 0),
    Sketcher.Constraint("Horizontal", 1),
    Sketcher.Constraint("Vertical", 2),
    Sketcher.Constraint("Horizontal", 3),
    Sketcher.Constraint("PointOnObject", 0, 2, -1),
    Sketcher.Constraint("DistanceY", 0, 2, 0, 1, Q("15 in")),
    Sketcher.Constraint("DistanceX", 1, 2, 1, 1, Q("0.125 in")),
    Sketcher.Constraint("DistanceX", -1, 1, 1, 2, Q("3.75 in")),
])
sketch12.setExpression("Constraints[9]", "Params.sketch12_height")
sketch12.setExpression("Constraints[10]", "Params.sketch12_width")
pocket6 = doc.addObject("PartDesign::Pocket", "Pocket005")
body6.addObject(pocket6)
pocket6.Profile = sketch12
pocket6.setExpression("Length", "Params.pocket6_length")
pocket6.Reversed = True
body7 = doc.addObject("PartDesign::Body", "Body006")

sketch13 = doc.addObject("Sketcher::SketchObject", "Sketch012")
body7.addObject(sketch13)
sketch13.AttachmentSupport = (doc.getObject("XY_Plane006"), [""])
sketch13.MapMode = "FlatFace"
sketch13.AttachmentOffset = App.Placement(App.Vector(0, 0, -0.125 * 25.4), App.Rotation())
add_polygon(sketch13, [(95.25, 498.475), (95.25, 257.175), (98.425, 257.175), (98.425, 498.475)])
sketch13.addConstraint([
    Sketcher.Constraint("Vertical", 0),
    Sketcher.Constraint("Horizontal", 1),
    Sketcher.Constraint("Vertical", 2),
    Sketcher.Constraint("Horizontal", 3),
    Sketcher.Constraint("DistanceY", 0, 2, 0, 1, Q("9.5 in")),
    Sketcher.Constraint("DistanceX", 1, 1, 1, 2, Q("0.125 in")),
    Sketcher.Constraint("DistanceX", -1, 1, 0, 2, Q("3.75 in")),
    Sketcher.Constraint("DistanceY", -1, 1, 0, 2, Q("10.125 in")),
])
sketch13.setExpression("Constraints[8]", "Params.sketch13_height")
sketch13.setExpression("Constraints[9]", "Params.sketch13_width")
pad7 = doc.addObject("PartDesign::Pad", "Pad006")
body7.addObject(pad7)
pad7.Profile = sketch13
pad7.setExpression("Length", "Params.pad7_length")
body8 = doc.addObject("PartDesign::Body", "Body007")

sketch14 = doc.addObject("Sketcher::SketchObject", "Sketch013")
body8.addObject(sketch14)
sketch14.AttachmentSupport = (doc.getObject("XY_Plane007"), [""])
sketch14.MapMode = "FlatFace"
sketch14.AttachmentOffset = App.Placement(App.Vector(0, 0, -0.125 * 25.4), App.Rotation())
add_polygon(sketch14, [(95.25, 250.825), (95.25, 9.525), (98.425, 9.525), (98.425, 250.825)])
sketch14.addConstraint([
    Sketcher.Constraint("Vertical", 0),
    Sketcher.Constraint("Horizontal", 1),
    Sketcher.Constraint("Vertical", 2),
    Sketcher.Constraint("Horizontal", 3),
    Sketcher.Constraint("DistanceY", 0, 2, 0, 1, Q("9.5 in")),
    Sketcher.Constraint("DistanceX", 1, 1, 1, 2, Q("0.125 in")),
    Sketcher.Constraint("DistanceX", -1, 1, 0, 2, Q("3.75 in")),
    Sketcher.Constraint("DistanceY", -1, 1, 0, 2, Q("0.375 in")),
])
sketch14.setExpression("Constraints[8]", "Params.sketch14_height")
sketch14.setExpression("Constraints[9]", "Params.sketch14_width")
pad8 = doc.addObject("PartDesign::Pad", "Pad007")
body8.addObject(pad8)
pad8.Profile = sketch14
pad8.setExpression("Length", "Params.pad8_length")
body9 = doc.addObject("PartDesign::Body", "Body008")

sketch15 = doc.addObject("Sketcher::SketchObject", "Sketch014")
body9.addObject(sketch15)
sketch15.AttachmentSupport = (doc.getObject("XZ_Plane008"), [""])
sketch15.MapMode = "FlatFace"
sketch15.addGeometry([
    Part.LineSegment(App.Vector(69.946471, 286.98157, 0), App.Vector(43.05151, 134.452666, 0)),
    Part.ArcOfCircle(Part.Circle(App.Vector(49.305039, 133.35, 0), App.Vector(0, 0, 1), 6.35), math.radians(170), math.radians(270)),
    Part.LineSegment(App.Vector(49.305039, 127, 0), App.Vector(76.2, 127, 0)),
    Part.ArcOfCircle(Part.Circle(App.Vector(76.2, 133.35, 0), App.Vector(0, 0, 1), 6.35), math.radians(-90), math.radians(0)),
    Part.LineSegment(App.Vector(82.55, 133.35, 0), App.Vector(82.55, 285.878904, 0)),
    Part.ArcOfCircle(Part.Circle(App.Vector(76.2, 285.878904, 0), App.Vector(0, 0, 1), 6.35), math.radians(0), math.radians(170)),
], False)
sketch15.addConstraint([
    Sketcher.Constraint("Tangent", 0, 2, 1, 1),
    Sketcher.Constraint("Tangent", 1, 2, 2, 1),
    Sketcher.Constraint("Tangent", 2, 2, 3, 1),
    Sketcher.Constraint("Tangent", 3, 2, 4, 1),
    Sketcher.Constraint("Tangent", 4, 2, 5, 1),
    Sketcher.Constraint("Tangent", 5, 2, 0, 1),
    Sketcher.Constraint("Horizontal", 2),
    Sketcher.Constraint("Vertical", 4),
    Sketcher.Constraint("Equal", 1, 3),
    Sketcher.Constraint("Equal", 3, 5),
    Sketcher.Constraint("Radius", 1, Q("0.25 in")),
    Sketcher.Constraint("DistanceX", -1, 1, 3, 3, Q("3 in")),
    Sketcher.Constraint("DistanceY", -1, 1, 1, 2, Q("5 in")),
    Sketcher.Constraint("Angle", 0, Q("-100 deg")),
    Sketcher.Constraint("DistanceX", 2, 1, 2, 2, 26.894961),
])
sketch15.setExpression("Constraints[10]", "Params.sketch15_radius")
pad9 = doc.addObject("PartDesign::Pad", "Pad008")
body9.addObject(pad9)
pad9.Profile = sketch15
pad9.setExpression("Length", "Params.pad9_length")
pad9.Reversed = True
doc.recompute()

body10 = doc.addObject("PartDesign::Body", "Body009")
body10.BaseFeature = body9
boolean = doc.addObject("PartDesign::Boolean", "Boolean")
body.addObject(boolean)
boolean.Type = "Cut"
boolean.addObjects([body10])
doc.recompute()

boolean2 = doc.addObject("PartDesign::Boolean", "Boolean001")
body3.addObject(boolean2)
boolean2.Type = "Cut"
boolean2.addObjects([body9])

doc.recompute()
